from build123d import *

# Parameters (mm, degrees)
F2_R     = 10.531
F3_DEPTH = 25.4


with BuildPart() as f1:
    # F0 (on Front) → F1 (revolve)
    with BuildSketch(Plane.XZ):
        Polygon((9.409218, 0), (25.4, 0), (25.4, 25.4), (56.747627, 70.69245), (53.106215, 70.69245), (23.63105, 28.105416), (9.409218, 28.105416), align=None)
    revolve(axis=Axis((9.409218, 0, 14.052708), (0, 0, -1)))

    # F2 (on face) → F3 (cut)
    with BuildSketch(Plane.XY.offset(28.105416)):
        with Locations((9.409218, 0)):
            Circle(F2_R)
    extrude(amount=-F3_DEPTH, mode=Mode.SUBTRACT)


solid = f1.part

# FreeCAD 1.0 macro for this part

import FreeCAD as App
import Part
import Sketcher

V = App.Vector
Q = App.Units.Quantity

doc = App.newDocument("Part")
params = doc.addObject("Spreadsheet::Sheet", "Params")
for row, (alias, value) in enumerate([
    ("sketch1_height", "1 in"),
    ("revolution_angle", "360 deg"),
    ("pocket1_length", "1 in"),
], start=1):
    params.set(f"A{row}", alias)
    params.set(f"B{row}", "=" + value)
    params.setAlias(f"B{row}", alias)

body = doc.addObject("PartDesign::Body", "Body")

sketch1 = body.newObject("Sketcher::SketchObject", "Sketch")
sketch1.AttachmentSupport = (doc.getObject("XZ_Plane"), [""])
sketch1.MapMode = "FlatFace"
sketch1.addGeometry([
    Part.LineSegment(V(9.4, 0, 0), V(25.4, 0, 0)),
    Part.LineSegment(V(25.4, 0, 0), V(25.4, 25.4, 0)),
    Part.LineSegment(V(25.4, 25.4, 0), V(56.7, 70.7, 0)),
    Part.LineSegment(V(56.7, 70.7, 0), V(53.1, 70.7, 0)),
    Part.LineSegment(V(53.1, 70.7, 0), V(23.6, 28.1, 0)),
    Part.LineSegment(V(23.6, 28.1, 0), V(9.4, 28.1, 0)),
    Part.LineSegment(V(9.4, 28.1, 0), V(9.4, 0, 0)),
], False)
sketch1.addGeometry(Part.LineSegment(V(9.4, 70.7, 0), V(9.4, 0, 0)), True)
sketch1.addConstraint([
    Sketcher.Constraint("Coincident", 0, 2, 1, 1),
    Sketcher.Constraint("Coincident", 1, 2, 2, 1),
    Sketcher.Constraint("Coincident", 2, 2, 3, 1),
    Sketcher.Constraint("Coincident", 3, 2, 4, 1),
    Sketcher.Constraint("Coincident", 4, 2, 5, 1),
    Sketcher.Constraint("Coincident", 5, 2, 6, 1),
    Sketcher.Constraint("Coincident", 6, 2, 0, 1),
    Sketcher.Constraint("Horizontal", 0),
    Sketcher.Constraint("Vertical", 1),
    Sketcher.Constraint("Horizontal", 3),
    Sketcher.Constraint("Horizontal", 5),
    Sketcher.Constraint("Vertical", 6),
    Sketcher.Constraint("Vertical", 7),
    Sketcher.Constraint("Coincident", 7, 2, 6, 2),
    Sketcher.Constraint("PointOnObject", 0, 2, -1),
    Sketcher.Constraint("Parallel", 2, 4),
    Sketcher.Constraint("Horizontal", 3, 2, 7, 1),
    Sketcher.Constraint("DistanceY", 1, 1, 1, 2, Q("1 in")),
    Sketcher.Constraint("DistanceX", -1, 1, 0, 2, Q("1 in")),
    Sketcher.Constraint("DistanceX", 0, 1, 0, 2, Q("15.990782 mm")),
    Sketcher.Constraint("DistanceX", 5, 2, 5, 1, Q("14.221832 mm")),
    Sketcher.Constraint("DistanceY", 7, 2, 7, 1, Q("70.69245 mm")),
    Sketcher.Constraint("Distance", 2, Q("55.082481 mm")),
    Sketcher.Constraint("DistanceX", 3, 2, 3, 1, Q("3.641412 mm")),
])
sketch1.setExpression("Constraints[17]", "Params.sketch1_height")
revolution = body.newObject("PartDesign::Revolution", "Revolution")
revolution.Profile = sketch1
revolution.ReferenceAxis = (sketch1, ["Axis0"])
revolution.setExpression("Angle", "Params.revolution_angle")

sketch2 = body.newObject("Sketcher::SketchObject", "Sketch001")
sketch2.AttachmentSupport = (doc.getObject("XY_Plane"), [""])
sketch2.MapMode = "FlatFace"
sketch2.AttachmentOffset = App.Placement(V(0, 0, 28.105416), App.Rotation())
sketch2.addGeometry(Part.Circle(V(9, 0, 0), V(0, 0, 1), 11), False)
sketch2.addConstraint([
    Sketcher.Constraint("PointOnObject", 0, 3, -1),
    Sketcher.Constraint("Diameter", 0, Q("21.062 mm")),
    Sketcher.Constraint("DistanceX", -1, 1, 0, 3, Q("9.409218 mm")),
])
pocket1 = body.newObject("PartDesign::Pocket", "Pocket")
pocket1.Profile = sketch2
pocket1.setExpression("Length", "Params.pocket1_length")

doc.recompute()
